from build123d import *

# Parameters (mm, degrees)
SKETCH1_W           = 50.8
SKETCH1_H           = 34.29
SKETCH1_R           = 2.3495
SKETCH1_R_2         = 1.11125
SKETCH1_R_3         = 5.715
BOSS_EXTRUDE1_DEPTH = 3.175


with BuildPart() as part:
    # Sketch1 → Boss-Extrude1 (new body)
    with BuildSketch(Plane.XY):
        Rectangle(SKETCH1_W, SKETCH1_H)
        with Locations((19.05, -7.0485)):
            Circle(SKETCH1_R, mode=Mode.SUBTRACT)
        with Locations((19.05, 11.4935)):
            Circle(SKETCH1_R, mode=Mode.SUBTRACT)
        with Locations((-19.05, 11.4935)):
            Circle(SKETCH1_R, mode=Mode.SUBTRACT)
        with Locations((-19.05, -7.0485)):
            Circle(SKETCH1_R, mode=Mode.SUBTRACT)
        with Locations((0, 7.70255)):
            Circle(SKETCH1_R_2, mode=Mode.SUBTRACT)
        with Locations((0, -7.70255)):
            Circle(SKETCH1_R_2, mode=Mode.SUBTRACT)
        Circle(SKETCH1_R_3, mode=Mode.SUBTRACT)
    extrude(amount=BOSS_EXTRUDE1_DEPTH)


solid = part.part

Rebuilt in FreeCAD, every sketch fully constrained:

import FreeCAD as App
import Part
import Sketcher
from FreeCAD import Vector
Q = App.Units.Quantity

doc = App.newDocument("Part")
params = doc.addObject("Spreadsheet::Sheet", "Params")
for row, (alias, value) in enumerate([
    ("sketch1_diameter", "0.45 in"),
    ("sketch1_width", "2 in"),
    ("sketch1_diameter2", "0.185 in"),
    ("sketch1_height", "1.35 in"),
    ("pad1_length", "0.125 in"),
], start=1):
    params.set(f"A{row}", alias)
    params.set(f"B{row}", "=" + value)
    params.setAlias(f"B{row}", alias)

body = doc.addObject("PartDesign::Body", "Body")

sketch1 = body.newObject("Sketcher::SketchObject", "Sketch")
sketch1.AttachmentSupport = (doc.getObject("XY_Plane"), [""])
sketch1.MapMode = "FlatFace"
sketch1.addGeometry([
    Part.LineSegment(Vector(-25.4, 17.1, 0), Vector(-25.4, -17.1, 0)),
    Part.LineSegment(Vector(-25.4, -17.1, 0), Vector(25.4, -17.1, 0)),
    Part.LineSegment(Vector(25.4, -17.1, 0), Vector(25.4, 17.1, 0)),
    Part.LineSegment(Vector(25.4, 17.1, 0), Vector(-25.4, 17.1, 0)),
    Part.Circle(Vector(-19.1, -7, 0), Vector(0, 0, 1), 2.3),
    Part.Circle(Vector(0, -7.7, 0), Vector(0, 0, 1), 1.1),
    Part.Circle(Vector(19.1, -7, 0), Vector(0, 0, 1), 2.3),
    Part.Circle(Vector(0, 0, 0), Vector(0, 0, 1), 5.7),
    Part.Circle(Vector(-19.1, 11.5, 0), Vector(0, 0, 1), 2.3),
    Part.Circle(Vector(0, 7.7, 0), Vector(0, 0, 1), 1.1),
    Part.Circle(Vector(19.1, 11.5, 0), Vector(0, 0, 1), 2.3),
], False)
sketch1.addConstraint([
    Sketcher.Constraint("Coincident", 0, 2, 1, 1),
    Sketcher.Constraint("Coincident", 1, 2, 2, 1),
    Sketcher.Constraint("Coincident", 2, 2, 3, 1),
    Sketcher.Constraint("Coincident", 3, 2, 0, 1),
    Sketcher.Constraint("Vertical", 0),
    Sketcher.Constraint("Horizontal", 1),
    Sketcher.Constraint("Vertical", 2),
    Sketcher.Constraint("Horizontal", 3),
    Sketcher.Constraint("Coincident", 7, 3, -1, 1),
    Sketcher.Constraint("Equal", 4, 6),
    Sketcher.Constraint("Equal", 6, 8),
    Sketcher.Constraint("Equal", 5, 9),
    Sketcher.Constraint("Equal", 8, 10),
    Sketcher.Constraint("Symmetric", 5, 3, 9, 3, -1, 1),
    Sketcher.Constraint("Symmetric", 0, 2, 2, 2, -1, 1),
    Sketcher.Constraint("Symmetric", 4, 3, 6, 3, -2),
    Sketcher.Constraint("Symmetric", 8, 3, 10, 3, -2),
    Sketcher.Constraint("PointOnObject", 5, 3, -2),
    Sketcher.Constraint("Vertical", 4, 3, 8, 3),
    Sketcher.Constraint("Diameter", 7, Q("0.45 in")),
    Sketcher.Constraint("DistanceX", 1, 1, 1, 2, Q("2 in")),
    Sketcher.Constraint("Diameter", 4, Q("0.185 in")),
    Sketcher.Constraint("Diameter", 5, Q("0.0875 in")),
    Sketcher.Constraint("DistanceY", 0, 2, 0, 1, Q("1.35 in")),
    Sketcher.Constraint("DistanceX", 4, 3, 6, 3, Q("1.5 in")),
    Sketcher.Constraint("DistanceY", 4, 3, 8, 3, Q("0.73 in")),
    Sketcher.Constraint("DistanceY", 4, 3, -1, 1, Q("0.2775 in")),
    Sketcher.Constraint("DistanceY", 5, 3, 9, 3, Q("0.6065 in")),
])
sketch1.setExpression("Constraints[19]", "Params.sketch1_diameter")
sketch1.setExpression("Constraints[20]", "Params.sketch1_width")
sketch1.setExpression("Constraints[21]", "Params.sketch1_diameter2")
sketch1.setExpression("Constraints[23]", "Params.sketch1_height")
pad1 = body.newObject("PartDesign::Pad", "Pad")
pad1.Profile = sketch1
pad1.setExpression("Length", "Params.pad1_length")

doc.recompute()
